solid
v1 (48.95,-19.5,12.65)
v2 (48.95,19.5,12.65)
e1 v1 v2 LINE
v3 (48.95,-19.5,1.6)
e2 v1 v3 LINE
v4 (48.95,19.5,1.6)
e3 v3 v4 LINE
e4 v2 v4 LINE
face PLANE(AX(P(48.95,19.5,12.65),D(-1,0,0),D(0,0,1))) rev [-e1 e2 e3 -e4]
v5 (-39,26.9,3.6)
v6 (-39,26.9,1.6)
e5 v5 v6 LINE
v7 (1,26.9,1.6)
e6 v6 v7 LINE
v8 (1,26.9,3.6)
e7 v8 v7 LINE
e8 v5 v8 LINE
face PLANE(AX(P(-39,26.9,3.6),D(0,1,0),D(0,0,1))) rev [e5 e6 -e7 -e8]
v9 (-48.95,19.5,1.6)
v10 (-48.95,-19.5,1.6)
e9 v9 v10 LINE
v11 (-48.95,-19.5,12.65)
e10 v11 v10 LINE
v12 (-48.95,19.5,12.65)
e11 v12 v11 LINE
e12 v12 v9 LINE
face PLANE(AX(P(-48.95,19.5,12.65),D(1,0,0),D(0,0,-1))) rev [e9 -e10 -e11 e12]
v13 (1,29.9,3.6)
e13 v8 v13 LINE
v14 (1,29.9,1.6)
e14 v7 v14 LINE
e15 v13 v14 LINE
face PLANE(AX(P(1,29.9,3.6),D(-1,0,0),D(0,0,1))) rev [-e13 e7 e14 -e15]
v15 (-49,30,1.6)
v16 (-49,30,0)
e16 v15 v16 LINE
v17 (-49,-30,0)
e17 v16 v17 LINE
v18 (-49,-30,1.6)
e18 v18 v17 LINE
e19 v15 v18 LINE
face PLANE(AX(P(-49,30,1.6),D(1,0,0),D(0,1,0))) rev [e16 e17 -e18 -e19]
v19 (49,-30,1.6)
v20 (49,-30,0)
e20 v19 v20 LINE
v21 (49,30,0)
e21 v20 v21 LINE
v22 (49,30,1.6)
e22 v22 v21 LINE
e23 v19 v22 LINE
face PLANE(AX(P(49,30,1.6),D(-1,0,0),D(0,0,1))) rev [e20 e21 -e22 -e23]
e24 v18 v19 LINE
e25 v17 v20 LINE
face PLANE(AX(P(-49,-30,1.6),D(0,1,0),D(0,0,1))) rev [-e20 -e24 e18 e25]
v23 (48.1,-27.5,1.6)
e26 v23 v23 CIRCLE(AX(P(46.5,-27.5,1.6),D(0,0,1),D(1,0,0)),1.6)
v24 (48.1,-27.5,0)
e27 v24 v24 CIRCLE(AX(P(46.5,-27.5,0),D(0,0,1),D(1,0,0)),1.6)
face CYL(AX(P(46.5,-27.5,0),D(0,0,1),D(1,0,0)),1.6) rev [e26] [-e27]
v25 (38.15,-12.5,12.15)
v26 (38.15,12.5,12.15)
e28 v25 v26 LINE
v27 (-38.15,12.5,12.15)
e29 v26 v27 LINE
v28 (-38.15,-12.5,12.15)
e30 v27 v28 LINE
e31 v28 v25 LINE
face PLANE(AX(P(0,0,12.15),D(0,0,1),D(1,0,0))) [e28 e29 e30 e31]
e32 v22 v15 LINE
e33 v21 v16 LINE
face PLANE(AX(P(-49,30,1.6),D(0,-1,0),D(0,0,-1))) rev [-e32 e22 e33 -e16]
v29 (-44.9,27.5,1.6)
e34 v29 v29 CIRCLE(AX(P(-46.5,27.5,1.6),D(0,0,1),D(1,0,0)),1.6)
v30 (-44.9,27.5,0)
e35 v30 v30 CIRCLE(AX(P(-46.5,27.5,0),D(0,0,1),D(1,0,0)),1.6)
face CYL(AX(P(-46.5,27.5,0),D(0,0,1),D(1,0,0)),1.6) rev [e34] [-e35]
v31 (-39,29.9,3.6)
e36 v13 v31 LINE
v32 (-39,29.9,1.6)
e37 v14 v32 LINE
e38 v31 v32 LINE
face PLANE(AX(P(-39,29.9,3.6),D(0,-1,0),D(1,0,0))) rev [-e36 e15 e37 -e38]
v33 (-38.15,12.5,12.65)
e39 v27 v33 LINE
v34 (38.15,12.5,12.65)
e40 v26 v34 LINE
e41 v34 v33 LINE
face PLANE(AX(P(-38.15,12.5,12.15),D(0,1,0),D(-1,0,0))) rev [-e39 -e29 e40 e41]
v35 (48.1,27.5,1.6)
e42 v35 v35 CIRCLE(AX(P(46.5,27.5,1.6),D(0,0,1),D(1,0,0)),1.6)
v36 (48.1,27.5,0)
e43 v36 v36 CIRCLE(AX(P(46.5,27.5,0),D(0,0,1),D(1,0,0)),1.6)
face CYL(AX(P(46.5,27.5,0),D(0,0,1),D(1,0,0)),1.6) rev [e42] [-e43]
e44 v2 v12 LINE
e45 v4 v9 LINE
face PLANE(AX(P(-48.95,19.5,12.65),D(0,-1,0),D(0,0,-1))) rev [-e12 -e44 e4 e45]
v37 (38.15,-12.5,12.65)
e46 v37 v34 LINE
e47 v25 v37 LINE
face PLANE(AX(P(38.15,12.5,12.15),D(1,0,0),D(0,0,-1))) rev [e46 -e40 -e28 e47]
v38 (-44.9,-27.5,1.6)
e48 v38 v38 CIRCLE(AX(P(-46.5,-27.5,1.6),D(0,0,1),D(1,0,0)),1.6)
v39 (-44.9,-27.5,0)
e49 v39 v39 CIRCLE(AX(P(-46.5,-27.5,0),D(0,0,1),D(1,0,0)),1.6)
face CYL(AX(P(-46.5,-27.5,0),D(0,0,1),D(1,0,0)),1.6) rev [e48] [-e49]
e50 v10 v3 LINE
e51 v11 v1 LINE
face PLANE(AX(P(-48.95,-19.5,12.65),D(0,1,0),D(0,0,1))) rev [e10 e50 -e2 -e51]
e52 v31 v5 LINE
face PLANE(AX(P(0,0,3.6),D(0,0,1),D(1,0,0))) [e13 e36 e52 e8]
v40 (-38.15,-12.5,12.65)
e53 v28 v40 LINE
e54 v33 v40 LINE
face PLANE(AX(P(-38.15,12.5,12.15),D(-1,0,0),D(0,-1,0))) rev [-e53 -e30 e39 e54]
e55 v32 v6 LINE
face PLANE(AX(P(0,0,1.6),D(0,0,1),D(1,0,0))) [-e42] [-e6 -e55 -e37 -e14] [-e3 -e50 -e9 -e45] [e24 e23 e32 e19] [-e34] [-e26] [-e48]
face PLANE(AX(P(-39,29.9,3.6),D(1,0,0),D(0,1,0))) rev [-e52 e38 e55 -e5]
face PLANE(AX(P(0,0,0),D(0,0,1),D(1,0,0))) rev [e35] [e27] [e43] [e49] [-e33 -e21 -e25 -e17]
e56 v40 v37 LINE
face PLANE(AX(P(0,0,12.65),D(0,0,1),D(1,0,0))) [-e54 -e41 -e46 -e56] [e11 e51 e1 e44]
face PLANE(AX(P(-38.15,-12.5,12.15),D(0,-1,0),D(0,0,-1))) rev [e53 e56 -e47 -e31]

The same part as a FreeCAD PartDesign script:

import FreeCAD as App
import Part
import Sketcher

V = App.Vector
Q = App.Units.Quantity

doc = App.newDocument("Part")
body = doc.addObject("PartDesign::Body", "Body")

# Sketch on XY plane
sketch1 = body.newObject("Sketcher::SketchObject", "Sketch")
sketch1.AttachmentSupport = (doc.getObject("XY_Plane"), [""])
sketch1.MapMode = "FlatFace"
sketch1.addGeometry([
    Part.LineSegment(V(-49, 30, 0), V(-49, -30, 0)),
    Part.LineSegment(V(-49, -30, 0), V(49, -30, 0)),
    Part.LineSegment(V(49, -30, 0), V(49, 30, 0)),
    Part.LineSegment(V(49, 30, 0), V(-49, 30, 0)),
], False)
sketch1.addConstraint([
    Sketcher.Constraint("Coincident", 0, 2, 1, 1),
    Sketcher.Constraint("Coincident", 1, 2, 2, 1),
    Sketcher.Constraint("Coincident", 2, 2, 3, 1),
    Sketcher.Constraint("Coincident", 3, 2, 0, 1),
    Sketcher.Constraint("Vertical", 0),
    Sketcher.Constraint("Horizontal", 1),
    Sketcher.Constraint("Vertical", 2),
    Sketcher.Constraint("Horizontal", 3),
    Sketcher.Constraint("Symmetric", 0, 2, 2, 2, -1, 1),
    Sketcher.Constraint("DistanceX", 1, 1, 1, 2, Q("98 mm")),
    Sketcher.Constraint("DistanceY", 0, 2, 0, 1, Q("60 mm")),
])
pad1 = body.newObject("PartDesign::Pad", "Pad")
pad1.Profile = sketch1
pad1.Length = 1.6

# Sketch on XY plane
sketch2 = body.newObject("Sketcher::SketchObject", "Sketch001")
sketch2.AttachmentSupport = (doc.getObject("XY_Plane"), [""])
sketch2.MapMode = "FlatFace"
sketch2.AttachmentOffset = App.Placement(V(0, 0, 1.6), App.Rotation())
sketch2.addGeometry([
    Part.Circle(V(-46.5, 27.5, 0), V(0, 0, 1), 1.6),
    Part.Circle(V(-46.5, -27.5, 0), V(0, 0, 1), 1.6),
    Part.Circle(V(46.5, -27.5, 0), V(0, 0, 1), 1.6),
    Part.Circle(V(46.5, 27.5, 0), V(0, 0, 1), 1.6),
], False)
sketch2.addConstraint([
    Sketcher.Constraint("Equal", 0, 1),
    Sketcher.Constraint("Equal", 1, 2),
    Sketcher.Constraint("Equal", 2, 3),
    Sketcher.Constraint("Symmetric", 0, 3, 2, 3, -1, 1),
    Sketcher.Constraint("Symmetric", 1, 3, 3, 3, -1, 1),
    Sketcher.Constraint("Symmetric", 1, 3, 2, 3, -2),
    Sketcher.Constraint("Diameter", 0, Q("3.2 mm")),
    Sketcher.Constraint("DistanceY", 1, 3, 0, 3, Q("55 mm")),
    Sketcher.Constraint("DistanceX", 1, 3, 2, 3, Q("93 mm")),
])
pocket1 = body.newObject("PartDesign::Pocket", "Pocket")
pocket1.Profile = sketch2
pocket1.Type = "ThroughAll"

# Sketch on XY plane
sketch3 = body.newObject("Sketcher::SketchObject", "Sketch002")
sketch3.AttachmentSupport = (doc.getObject("XY_Plane"), [""])
sketch3.MapMode = "FlatFace"
sketch3.AttachmentOffset = App.Placement(V(0, 0, 1.6), App.Rotation())
sketch3.addGeometry([
    Part.LineSegment(V(-49, 20, 0), V(-49, -20, 0)),
    Part.LineSegment(V(-49, -20, 0), V(49, -20, 0)),
    Part.LineSegment(V(49, -20, 0), V(49, 20, 0)),
    Part.LineSegment(V(49, 20, 0), V(-49, 20, 0)),
], False)
sketch3.addConstraint([
    Sketcher.Constraint("Coincident", 0, 2, 1, 1),
    Sketcher.Constraint("Coincident", 1, 2, 2, 1),
    Sketcher.Constraint("Coincident", 2, 2, 3, 1),
    Sketcher.Constraint("Coincident", 3, 2, 0, 1),
    Sketcher.Constraint("Vertical", 0),
    Sketcher.Constraint("Horizontal", 1),
    Sketcher.Constraint("Vertical", 2),
    Sketcher.Constraint("Horizontal", 3),
    Sketcher.Constraint("Symmetric", 0, 2, 2, 2, -1, 1),
    Sketcher.Constraint("DistanceY", 0, 2, 0, 1, Q("39 mm")),
    Sketcher.Constraint("DistanceX", 1, 1, 1, 2, Q("97.9 mm")),
])
pad2 = body.newObject("PartDesign::Pad", "Pad001")
pad2.Profile = sketch3
pad2.Length = 11.05

# Sketch on XY plane
sketch4 = body.newObject("Sketcher::SketchObject", "Sketch003")
sketch4.AttachmentSupport = (doc.getObject("XY_Plane"), [""])
sketch4.MapMode = "FlatFace"
sketch4.AttachmentOffset = App.Placement(V(0, 0, 12.65), App.Rotation())
sketch4.addGeometry([
    Part.LineSegment(V(-38, 12, 0), V(-38, -12, 0)),
    Part.LineSegment(V(-38, -12, 0), V(38, -12, 0)),
    Part.LineSegment(V(38, -12, 0), V(38, 12, 0)),
    Part.LineSegment(V(38, 12, 0), V(-38, 12, 0)),
], False)
sketch4.addConstraint([
    Sketcher.Constraint("Coincident", 0, 2, 1, 1),
    Sketcher.Constraint("Coincident", 1, 2, 2, 1),
    Sketcher.Constraint("Coincident", 2, 2, 3, 1),
    Sketcher.Constraint("Coincident", 3, 2, 0, 1),
    Sketcher.Constraint("Vertical", 0),
    Sketcher.Constraint("Horizontal", 1),
    Sketcher.Constraint("Vertical", 2),
    Sketcher.Constraint("Horizontal", 3),
    Sketcher.Constraint("Symmetric", 0, 2, 2, 2, -1, 1),
    Sketcher.Constraint("DistanceY", 0, 2, 0, 1, Q("25 mm")),
    Sketcher.Constraint("DistanceX", 1, 1, 1, 2, Q("76.3 mm")),
])
pocket2 = body.newObject("PartDesign::Pocket", "Pocket001")
pocket2.Profile = sketch4
pocket2.Length = 0.5

# Sketch on XY plane
sketch5 = body.newObject("Sketcher::SketchObject", "Sketch004")
sketch5.AttachmentSupport = (doc.getObject("XY_Plane"), [""])
sketch5.MapMode = "FlatFace"
sketch5.AttachmentOffset = App.Placement(V(0, 0, 1.6), App.Rotation())
sketch5.addGeometry([
    Part.LineSegment(V(-39, 29.9, 0), V(-39, 26.9, 0)),
    Part.LineSegment(V(-39, 26.9, 0), V(1, 26.9, 0)),
    Part.LineSegment(V(1, 26.9, 0), V(1, 29.9, 0)),
    Part.LineSegment(V(1, 29.9, 0), V(-39, 29.9, 0)),
], False)
sketch5.addConstraint([
    Sketcher.Constraint("Coincident", 0, 2, 1, 1),
    Sketcher.Constraint("Coincident", 1, 2, 2, 1),
    Sketcher.Constraint("Coincident", 2, 2, 3, 1),
    Sketcher.Constraint("Coincident", 3, 2, 0, 1),
    Sketcher.Constraint("Vertical", 0),
    Sketcher.Constraint("Horizontal", 1),
    Sketcher.Constraint("Vertical", 2),
    Sketcher.Constraint("Horizontal", 3),
    Sketcher.Constraint("DistanceX", 1, 1, 1, 2, Q("40 mm")),
    Sketcher.Constraint("DistanceY", 0, 2, 0, 1, Q("3 mm")),
    Sketcher.Constraint("DistanceX", 0, 2, -1, 1, Q("39 mm")),
    Sketcher.Constraint("DistanceY", -1, 1, 0, 2, Q("26.9 mm")),
])
pad3 = body.newObject("PartDesign::Pad", "Pad002")
pad3.Profile = sketch5
pad3.Length = 2

doc.recompute()
